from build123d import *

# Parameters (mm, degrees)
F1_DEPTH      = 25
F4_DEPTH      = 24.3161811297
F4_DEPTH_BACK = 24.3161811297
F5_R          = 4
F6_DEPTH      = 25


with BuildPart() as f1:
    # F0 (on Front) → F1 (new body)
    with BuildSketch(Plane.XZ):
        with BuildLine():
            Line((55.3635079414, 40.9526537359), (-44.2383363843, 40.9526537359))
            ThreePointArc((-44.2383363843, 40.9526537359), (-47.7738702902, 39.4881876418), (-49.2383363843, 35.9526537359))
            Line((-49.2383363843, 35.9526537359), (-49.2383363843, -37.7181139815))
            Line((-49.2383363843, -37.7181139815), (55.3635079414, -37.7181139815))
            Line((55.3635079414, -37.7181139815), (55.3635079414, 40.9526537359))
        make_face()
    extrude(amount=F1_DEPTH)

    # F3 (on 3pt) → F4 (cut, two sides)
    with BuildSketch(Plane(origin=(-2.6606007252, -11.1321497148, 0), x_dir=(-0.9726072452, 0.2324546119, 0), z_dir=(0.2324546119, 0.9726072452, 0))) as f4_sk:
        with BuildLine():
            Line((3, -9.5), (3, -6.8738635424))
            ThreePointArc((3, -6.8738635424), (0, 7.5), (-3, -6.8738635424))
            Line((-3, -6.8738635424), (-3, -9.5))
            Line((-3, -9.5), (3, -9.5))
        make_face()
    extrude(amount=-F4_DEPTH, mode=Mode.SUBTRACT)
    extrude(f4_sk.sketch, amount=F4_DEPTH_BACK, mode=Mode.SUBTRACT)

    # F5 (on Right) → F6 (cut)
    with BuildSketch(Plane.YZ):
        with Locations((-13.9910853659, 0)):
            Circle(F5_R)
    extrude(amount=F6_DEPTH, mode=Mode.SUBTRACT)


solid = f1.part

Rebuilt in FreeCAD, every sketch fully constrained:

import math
import FreeCAD as App
import Part
import Sketcher

V = App.Vector

doc = App.newDocument("Part")
body = doc.addObject("PartDesign::Body", "Body")

sketch1 = doc.addObject("Sketcher::SketchObject", "Sketch")
body.addObject(sketch1)
sketch1.AttachmentSupport = (doc.XZ_Plane, [""])
sketch1.MapMode = "FlatFace"
sketch1.addGeometry([
    Part.LineSegment(V(55.363508, 40.952654, 0), V(-44.238336, 40.952654, 0)),
    Part.ArcOfCircle(Part.Circle(V(-44.238336, 35.952654, 0), V(0, 0, 1), 5), math.radians(90), math.radians(180)),
    Part.LineSegment(V(-49.238336, 35.952654, 0), V(-49.238336, -37.718114, 0)),
    Part.LineSegment(V(-49.238336, -37.718114, 0), V(55.363508, -37.718114, 0)),
    Part.LineSegment(V(55.363508, -37.718114, 0), V(55.363508, 40.952654, 0)),
], False)
sketch1.addConstraint([
    Sketcher.Constraint("Tangent", 0, 2, 1, 1),
    Sketcher.Constraint("Tangent", 1, 2, 2, 1),
    Sketcher.Constraint("Coincident", 2, 2, 3, 1),
    Sketcher.Constraint("Coincident", 3, 2, 4, 1),
    Sketcher.Constraint("Coincident", 4, 2, 0, 1),
    Sketcher.Constraint("Horizontal", 0),
    Sketcher.Constraint("Vertical", 2),
    Sketcher.Constraint("Horizontal", 3),
    Sketcher.Constraint("Vertical", 4),
    Sketcher.Constraint("Radius", 1, 5.0),
    Sketcher.Constraint("DistanceX", 0, 2, 0, 1, 99.601844),
    Sketcher.Constraint("DistanceY", 2, 2, 2, 1, 73.670768),
    Sketcher.Constraint("DistanceX", 1, 3, -1, 1, 44.238336),
    Sketcher.Constraint("DistanceY", -1, 1, 1, 3, 35.952654),
])
pad1 = doc.addObject("PartDesign::Pad", "Pad")
body.addObject(pad1)
pad1.Profile = sketch1
pad1.Length = 25

sketch2 = doc.addObject("Sketcher::SketchObject", "Sketch001")
body.addObject(sketch2)
sketch2.Placement = App.Placement(V(-2.660601, -11.13215, 0), App.Rotation(V(-0.972607245, 0.232454612, 0), V(0, 0, 1), V(0.232454612, 0.972607245, 0), "ZXY"))
sketch2.addGeometry([
    Part.LineSegment(V(3, -9.5, 0), V(3, -6.873864, 0)),
    Part.ArcOfCircle(Part.Circle(V(0, 0, 0), V(0, 0, 1), 7.5), math.radians(-66.421822), math.radians(246.421822)),
    Part.LineSegment(V(-3, -6.873864, 0), V(-3, -9.5, 0)),
    Part.LineSegment(V(-3, -9.5, 0), V(3, -9.5, 0)),
], False)
sketch2.addConstraint([
    Sketcher.Constraint("Coincident", 0, 2, 1, 1),
    Sketcher.Constraint("Coincident", 1, 2, 2, 1),
    Sketcher.Constraint("Coincident", 2, 2, 3, 1),
    Sketcher.Constraint("Coincident", 3, 2, 0, 1),
    Sketcher.Constraint("Vertical", 0),
    Sketcher.Constraint("Vertical", 2),
    Sketcher.Constraint("Horizontal", 3),
    Sketcher.Constraint("Coincident", 1, 3, -1, 1),
    Sketcher.Constraint("Horizontal", 0, 2, 1, 2),
    Sketcher.Constraint("Radius", 1, 7.5),
    Sketcher.Constraint("DistanceX", 3, 1, 3, 2, 6.0),
    Sketcher.Constraint("DistanceY", 2, 2, -1, 1, 9.5),
])
pocket1 = doc.addObject("PartDesign::Pocket", "Pocket")
body.addObject(pocket1)
pocket1.Profile = sketch2
pocket1.Type = "ThroughAll"
pocket1.Midplane = True

sketch3 = doc.addObject("Sketcher::SketchObject", "Sketch002")
body.addObject(sketch3)
sketch3.AttachmentSupport = (doc.YZ_Plane, [""])
sketch3.MapMode = "FlatFace"
sketch3.addGeometry(Part.Circle(V(-13.991085, 0, 0), V(0, 0, 1), 4), False)
sketch3.addConstraint([
    Sketcher.Constraint("PointOnObject", 0, 3, -1),
    Sketcher.Constraint("Diameter", 0, 8.0),
    Sketcher.Constraint("DistanceX", 0, 3, -1, 1, 13.991085),
])
pocket2 = doc.addObject("PartDesign::Pocket", "Pocket001")
body.addObject(pocket2)
pocket2.Profile = sketch3
pocket2.Length = 25
pocket2.Reversed = True

doc.recompute()
